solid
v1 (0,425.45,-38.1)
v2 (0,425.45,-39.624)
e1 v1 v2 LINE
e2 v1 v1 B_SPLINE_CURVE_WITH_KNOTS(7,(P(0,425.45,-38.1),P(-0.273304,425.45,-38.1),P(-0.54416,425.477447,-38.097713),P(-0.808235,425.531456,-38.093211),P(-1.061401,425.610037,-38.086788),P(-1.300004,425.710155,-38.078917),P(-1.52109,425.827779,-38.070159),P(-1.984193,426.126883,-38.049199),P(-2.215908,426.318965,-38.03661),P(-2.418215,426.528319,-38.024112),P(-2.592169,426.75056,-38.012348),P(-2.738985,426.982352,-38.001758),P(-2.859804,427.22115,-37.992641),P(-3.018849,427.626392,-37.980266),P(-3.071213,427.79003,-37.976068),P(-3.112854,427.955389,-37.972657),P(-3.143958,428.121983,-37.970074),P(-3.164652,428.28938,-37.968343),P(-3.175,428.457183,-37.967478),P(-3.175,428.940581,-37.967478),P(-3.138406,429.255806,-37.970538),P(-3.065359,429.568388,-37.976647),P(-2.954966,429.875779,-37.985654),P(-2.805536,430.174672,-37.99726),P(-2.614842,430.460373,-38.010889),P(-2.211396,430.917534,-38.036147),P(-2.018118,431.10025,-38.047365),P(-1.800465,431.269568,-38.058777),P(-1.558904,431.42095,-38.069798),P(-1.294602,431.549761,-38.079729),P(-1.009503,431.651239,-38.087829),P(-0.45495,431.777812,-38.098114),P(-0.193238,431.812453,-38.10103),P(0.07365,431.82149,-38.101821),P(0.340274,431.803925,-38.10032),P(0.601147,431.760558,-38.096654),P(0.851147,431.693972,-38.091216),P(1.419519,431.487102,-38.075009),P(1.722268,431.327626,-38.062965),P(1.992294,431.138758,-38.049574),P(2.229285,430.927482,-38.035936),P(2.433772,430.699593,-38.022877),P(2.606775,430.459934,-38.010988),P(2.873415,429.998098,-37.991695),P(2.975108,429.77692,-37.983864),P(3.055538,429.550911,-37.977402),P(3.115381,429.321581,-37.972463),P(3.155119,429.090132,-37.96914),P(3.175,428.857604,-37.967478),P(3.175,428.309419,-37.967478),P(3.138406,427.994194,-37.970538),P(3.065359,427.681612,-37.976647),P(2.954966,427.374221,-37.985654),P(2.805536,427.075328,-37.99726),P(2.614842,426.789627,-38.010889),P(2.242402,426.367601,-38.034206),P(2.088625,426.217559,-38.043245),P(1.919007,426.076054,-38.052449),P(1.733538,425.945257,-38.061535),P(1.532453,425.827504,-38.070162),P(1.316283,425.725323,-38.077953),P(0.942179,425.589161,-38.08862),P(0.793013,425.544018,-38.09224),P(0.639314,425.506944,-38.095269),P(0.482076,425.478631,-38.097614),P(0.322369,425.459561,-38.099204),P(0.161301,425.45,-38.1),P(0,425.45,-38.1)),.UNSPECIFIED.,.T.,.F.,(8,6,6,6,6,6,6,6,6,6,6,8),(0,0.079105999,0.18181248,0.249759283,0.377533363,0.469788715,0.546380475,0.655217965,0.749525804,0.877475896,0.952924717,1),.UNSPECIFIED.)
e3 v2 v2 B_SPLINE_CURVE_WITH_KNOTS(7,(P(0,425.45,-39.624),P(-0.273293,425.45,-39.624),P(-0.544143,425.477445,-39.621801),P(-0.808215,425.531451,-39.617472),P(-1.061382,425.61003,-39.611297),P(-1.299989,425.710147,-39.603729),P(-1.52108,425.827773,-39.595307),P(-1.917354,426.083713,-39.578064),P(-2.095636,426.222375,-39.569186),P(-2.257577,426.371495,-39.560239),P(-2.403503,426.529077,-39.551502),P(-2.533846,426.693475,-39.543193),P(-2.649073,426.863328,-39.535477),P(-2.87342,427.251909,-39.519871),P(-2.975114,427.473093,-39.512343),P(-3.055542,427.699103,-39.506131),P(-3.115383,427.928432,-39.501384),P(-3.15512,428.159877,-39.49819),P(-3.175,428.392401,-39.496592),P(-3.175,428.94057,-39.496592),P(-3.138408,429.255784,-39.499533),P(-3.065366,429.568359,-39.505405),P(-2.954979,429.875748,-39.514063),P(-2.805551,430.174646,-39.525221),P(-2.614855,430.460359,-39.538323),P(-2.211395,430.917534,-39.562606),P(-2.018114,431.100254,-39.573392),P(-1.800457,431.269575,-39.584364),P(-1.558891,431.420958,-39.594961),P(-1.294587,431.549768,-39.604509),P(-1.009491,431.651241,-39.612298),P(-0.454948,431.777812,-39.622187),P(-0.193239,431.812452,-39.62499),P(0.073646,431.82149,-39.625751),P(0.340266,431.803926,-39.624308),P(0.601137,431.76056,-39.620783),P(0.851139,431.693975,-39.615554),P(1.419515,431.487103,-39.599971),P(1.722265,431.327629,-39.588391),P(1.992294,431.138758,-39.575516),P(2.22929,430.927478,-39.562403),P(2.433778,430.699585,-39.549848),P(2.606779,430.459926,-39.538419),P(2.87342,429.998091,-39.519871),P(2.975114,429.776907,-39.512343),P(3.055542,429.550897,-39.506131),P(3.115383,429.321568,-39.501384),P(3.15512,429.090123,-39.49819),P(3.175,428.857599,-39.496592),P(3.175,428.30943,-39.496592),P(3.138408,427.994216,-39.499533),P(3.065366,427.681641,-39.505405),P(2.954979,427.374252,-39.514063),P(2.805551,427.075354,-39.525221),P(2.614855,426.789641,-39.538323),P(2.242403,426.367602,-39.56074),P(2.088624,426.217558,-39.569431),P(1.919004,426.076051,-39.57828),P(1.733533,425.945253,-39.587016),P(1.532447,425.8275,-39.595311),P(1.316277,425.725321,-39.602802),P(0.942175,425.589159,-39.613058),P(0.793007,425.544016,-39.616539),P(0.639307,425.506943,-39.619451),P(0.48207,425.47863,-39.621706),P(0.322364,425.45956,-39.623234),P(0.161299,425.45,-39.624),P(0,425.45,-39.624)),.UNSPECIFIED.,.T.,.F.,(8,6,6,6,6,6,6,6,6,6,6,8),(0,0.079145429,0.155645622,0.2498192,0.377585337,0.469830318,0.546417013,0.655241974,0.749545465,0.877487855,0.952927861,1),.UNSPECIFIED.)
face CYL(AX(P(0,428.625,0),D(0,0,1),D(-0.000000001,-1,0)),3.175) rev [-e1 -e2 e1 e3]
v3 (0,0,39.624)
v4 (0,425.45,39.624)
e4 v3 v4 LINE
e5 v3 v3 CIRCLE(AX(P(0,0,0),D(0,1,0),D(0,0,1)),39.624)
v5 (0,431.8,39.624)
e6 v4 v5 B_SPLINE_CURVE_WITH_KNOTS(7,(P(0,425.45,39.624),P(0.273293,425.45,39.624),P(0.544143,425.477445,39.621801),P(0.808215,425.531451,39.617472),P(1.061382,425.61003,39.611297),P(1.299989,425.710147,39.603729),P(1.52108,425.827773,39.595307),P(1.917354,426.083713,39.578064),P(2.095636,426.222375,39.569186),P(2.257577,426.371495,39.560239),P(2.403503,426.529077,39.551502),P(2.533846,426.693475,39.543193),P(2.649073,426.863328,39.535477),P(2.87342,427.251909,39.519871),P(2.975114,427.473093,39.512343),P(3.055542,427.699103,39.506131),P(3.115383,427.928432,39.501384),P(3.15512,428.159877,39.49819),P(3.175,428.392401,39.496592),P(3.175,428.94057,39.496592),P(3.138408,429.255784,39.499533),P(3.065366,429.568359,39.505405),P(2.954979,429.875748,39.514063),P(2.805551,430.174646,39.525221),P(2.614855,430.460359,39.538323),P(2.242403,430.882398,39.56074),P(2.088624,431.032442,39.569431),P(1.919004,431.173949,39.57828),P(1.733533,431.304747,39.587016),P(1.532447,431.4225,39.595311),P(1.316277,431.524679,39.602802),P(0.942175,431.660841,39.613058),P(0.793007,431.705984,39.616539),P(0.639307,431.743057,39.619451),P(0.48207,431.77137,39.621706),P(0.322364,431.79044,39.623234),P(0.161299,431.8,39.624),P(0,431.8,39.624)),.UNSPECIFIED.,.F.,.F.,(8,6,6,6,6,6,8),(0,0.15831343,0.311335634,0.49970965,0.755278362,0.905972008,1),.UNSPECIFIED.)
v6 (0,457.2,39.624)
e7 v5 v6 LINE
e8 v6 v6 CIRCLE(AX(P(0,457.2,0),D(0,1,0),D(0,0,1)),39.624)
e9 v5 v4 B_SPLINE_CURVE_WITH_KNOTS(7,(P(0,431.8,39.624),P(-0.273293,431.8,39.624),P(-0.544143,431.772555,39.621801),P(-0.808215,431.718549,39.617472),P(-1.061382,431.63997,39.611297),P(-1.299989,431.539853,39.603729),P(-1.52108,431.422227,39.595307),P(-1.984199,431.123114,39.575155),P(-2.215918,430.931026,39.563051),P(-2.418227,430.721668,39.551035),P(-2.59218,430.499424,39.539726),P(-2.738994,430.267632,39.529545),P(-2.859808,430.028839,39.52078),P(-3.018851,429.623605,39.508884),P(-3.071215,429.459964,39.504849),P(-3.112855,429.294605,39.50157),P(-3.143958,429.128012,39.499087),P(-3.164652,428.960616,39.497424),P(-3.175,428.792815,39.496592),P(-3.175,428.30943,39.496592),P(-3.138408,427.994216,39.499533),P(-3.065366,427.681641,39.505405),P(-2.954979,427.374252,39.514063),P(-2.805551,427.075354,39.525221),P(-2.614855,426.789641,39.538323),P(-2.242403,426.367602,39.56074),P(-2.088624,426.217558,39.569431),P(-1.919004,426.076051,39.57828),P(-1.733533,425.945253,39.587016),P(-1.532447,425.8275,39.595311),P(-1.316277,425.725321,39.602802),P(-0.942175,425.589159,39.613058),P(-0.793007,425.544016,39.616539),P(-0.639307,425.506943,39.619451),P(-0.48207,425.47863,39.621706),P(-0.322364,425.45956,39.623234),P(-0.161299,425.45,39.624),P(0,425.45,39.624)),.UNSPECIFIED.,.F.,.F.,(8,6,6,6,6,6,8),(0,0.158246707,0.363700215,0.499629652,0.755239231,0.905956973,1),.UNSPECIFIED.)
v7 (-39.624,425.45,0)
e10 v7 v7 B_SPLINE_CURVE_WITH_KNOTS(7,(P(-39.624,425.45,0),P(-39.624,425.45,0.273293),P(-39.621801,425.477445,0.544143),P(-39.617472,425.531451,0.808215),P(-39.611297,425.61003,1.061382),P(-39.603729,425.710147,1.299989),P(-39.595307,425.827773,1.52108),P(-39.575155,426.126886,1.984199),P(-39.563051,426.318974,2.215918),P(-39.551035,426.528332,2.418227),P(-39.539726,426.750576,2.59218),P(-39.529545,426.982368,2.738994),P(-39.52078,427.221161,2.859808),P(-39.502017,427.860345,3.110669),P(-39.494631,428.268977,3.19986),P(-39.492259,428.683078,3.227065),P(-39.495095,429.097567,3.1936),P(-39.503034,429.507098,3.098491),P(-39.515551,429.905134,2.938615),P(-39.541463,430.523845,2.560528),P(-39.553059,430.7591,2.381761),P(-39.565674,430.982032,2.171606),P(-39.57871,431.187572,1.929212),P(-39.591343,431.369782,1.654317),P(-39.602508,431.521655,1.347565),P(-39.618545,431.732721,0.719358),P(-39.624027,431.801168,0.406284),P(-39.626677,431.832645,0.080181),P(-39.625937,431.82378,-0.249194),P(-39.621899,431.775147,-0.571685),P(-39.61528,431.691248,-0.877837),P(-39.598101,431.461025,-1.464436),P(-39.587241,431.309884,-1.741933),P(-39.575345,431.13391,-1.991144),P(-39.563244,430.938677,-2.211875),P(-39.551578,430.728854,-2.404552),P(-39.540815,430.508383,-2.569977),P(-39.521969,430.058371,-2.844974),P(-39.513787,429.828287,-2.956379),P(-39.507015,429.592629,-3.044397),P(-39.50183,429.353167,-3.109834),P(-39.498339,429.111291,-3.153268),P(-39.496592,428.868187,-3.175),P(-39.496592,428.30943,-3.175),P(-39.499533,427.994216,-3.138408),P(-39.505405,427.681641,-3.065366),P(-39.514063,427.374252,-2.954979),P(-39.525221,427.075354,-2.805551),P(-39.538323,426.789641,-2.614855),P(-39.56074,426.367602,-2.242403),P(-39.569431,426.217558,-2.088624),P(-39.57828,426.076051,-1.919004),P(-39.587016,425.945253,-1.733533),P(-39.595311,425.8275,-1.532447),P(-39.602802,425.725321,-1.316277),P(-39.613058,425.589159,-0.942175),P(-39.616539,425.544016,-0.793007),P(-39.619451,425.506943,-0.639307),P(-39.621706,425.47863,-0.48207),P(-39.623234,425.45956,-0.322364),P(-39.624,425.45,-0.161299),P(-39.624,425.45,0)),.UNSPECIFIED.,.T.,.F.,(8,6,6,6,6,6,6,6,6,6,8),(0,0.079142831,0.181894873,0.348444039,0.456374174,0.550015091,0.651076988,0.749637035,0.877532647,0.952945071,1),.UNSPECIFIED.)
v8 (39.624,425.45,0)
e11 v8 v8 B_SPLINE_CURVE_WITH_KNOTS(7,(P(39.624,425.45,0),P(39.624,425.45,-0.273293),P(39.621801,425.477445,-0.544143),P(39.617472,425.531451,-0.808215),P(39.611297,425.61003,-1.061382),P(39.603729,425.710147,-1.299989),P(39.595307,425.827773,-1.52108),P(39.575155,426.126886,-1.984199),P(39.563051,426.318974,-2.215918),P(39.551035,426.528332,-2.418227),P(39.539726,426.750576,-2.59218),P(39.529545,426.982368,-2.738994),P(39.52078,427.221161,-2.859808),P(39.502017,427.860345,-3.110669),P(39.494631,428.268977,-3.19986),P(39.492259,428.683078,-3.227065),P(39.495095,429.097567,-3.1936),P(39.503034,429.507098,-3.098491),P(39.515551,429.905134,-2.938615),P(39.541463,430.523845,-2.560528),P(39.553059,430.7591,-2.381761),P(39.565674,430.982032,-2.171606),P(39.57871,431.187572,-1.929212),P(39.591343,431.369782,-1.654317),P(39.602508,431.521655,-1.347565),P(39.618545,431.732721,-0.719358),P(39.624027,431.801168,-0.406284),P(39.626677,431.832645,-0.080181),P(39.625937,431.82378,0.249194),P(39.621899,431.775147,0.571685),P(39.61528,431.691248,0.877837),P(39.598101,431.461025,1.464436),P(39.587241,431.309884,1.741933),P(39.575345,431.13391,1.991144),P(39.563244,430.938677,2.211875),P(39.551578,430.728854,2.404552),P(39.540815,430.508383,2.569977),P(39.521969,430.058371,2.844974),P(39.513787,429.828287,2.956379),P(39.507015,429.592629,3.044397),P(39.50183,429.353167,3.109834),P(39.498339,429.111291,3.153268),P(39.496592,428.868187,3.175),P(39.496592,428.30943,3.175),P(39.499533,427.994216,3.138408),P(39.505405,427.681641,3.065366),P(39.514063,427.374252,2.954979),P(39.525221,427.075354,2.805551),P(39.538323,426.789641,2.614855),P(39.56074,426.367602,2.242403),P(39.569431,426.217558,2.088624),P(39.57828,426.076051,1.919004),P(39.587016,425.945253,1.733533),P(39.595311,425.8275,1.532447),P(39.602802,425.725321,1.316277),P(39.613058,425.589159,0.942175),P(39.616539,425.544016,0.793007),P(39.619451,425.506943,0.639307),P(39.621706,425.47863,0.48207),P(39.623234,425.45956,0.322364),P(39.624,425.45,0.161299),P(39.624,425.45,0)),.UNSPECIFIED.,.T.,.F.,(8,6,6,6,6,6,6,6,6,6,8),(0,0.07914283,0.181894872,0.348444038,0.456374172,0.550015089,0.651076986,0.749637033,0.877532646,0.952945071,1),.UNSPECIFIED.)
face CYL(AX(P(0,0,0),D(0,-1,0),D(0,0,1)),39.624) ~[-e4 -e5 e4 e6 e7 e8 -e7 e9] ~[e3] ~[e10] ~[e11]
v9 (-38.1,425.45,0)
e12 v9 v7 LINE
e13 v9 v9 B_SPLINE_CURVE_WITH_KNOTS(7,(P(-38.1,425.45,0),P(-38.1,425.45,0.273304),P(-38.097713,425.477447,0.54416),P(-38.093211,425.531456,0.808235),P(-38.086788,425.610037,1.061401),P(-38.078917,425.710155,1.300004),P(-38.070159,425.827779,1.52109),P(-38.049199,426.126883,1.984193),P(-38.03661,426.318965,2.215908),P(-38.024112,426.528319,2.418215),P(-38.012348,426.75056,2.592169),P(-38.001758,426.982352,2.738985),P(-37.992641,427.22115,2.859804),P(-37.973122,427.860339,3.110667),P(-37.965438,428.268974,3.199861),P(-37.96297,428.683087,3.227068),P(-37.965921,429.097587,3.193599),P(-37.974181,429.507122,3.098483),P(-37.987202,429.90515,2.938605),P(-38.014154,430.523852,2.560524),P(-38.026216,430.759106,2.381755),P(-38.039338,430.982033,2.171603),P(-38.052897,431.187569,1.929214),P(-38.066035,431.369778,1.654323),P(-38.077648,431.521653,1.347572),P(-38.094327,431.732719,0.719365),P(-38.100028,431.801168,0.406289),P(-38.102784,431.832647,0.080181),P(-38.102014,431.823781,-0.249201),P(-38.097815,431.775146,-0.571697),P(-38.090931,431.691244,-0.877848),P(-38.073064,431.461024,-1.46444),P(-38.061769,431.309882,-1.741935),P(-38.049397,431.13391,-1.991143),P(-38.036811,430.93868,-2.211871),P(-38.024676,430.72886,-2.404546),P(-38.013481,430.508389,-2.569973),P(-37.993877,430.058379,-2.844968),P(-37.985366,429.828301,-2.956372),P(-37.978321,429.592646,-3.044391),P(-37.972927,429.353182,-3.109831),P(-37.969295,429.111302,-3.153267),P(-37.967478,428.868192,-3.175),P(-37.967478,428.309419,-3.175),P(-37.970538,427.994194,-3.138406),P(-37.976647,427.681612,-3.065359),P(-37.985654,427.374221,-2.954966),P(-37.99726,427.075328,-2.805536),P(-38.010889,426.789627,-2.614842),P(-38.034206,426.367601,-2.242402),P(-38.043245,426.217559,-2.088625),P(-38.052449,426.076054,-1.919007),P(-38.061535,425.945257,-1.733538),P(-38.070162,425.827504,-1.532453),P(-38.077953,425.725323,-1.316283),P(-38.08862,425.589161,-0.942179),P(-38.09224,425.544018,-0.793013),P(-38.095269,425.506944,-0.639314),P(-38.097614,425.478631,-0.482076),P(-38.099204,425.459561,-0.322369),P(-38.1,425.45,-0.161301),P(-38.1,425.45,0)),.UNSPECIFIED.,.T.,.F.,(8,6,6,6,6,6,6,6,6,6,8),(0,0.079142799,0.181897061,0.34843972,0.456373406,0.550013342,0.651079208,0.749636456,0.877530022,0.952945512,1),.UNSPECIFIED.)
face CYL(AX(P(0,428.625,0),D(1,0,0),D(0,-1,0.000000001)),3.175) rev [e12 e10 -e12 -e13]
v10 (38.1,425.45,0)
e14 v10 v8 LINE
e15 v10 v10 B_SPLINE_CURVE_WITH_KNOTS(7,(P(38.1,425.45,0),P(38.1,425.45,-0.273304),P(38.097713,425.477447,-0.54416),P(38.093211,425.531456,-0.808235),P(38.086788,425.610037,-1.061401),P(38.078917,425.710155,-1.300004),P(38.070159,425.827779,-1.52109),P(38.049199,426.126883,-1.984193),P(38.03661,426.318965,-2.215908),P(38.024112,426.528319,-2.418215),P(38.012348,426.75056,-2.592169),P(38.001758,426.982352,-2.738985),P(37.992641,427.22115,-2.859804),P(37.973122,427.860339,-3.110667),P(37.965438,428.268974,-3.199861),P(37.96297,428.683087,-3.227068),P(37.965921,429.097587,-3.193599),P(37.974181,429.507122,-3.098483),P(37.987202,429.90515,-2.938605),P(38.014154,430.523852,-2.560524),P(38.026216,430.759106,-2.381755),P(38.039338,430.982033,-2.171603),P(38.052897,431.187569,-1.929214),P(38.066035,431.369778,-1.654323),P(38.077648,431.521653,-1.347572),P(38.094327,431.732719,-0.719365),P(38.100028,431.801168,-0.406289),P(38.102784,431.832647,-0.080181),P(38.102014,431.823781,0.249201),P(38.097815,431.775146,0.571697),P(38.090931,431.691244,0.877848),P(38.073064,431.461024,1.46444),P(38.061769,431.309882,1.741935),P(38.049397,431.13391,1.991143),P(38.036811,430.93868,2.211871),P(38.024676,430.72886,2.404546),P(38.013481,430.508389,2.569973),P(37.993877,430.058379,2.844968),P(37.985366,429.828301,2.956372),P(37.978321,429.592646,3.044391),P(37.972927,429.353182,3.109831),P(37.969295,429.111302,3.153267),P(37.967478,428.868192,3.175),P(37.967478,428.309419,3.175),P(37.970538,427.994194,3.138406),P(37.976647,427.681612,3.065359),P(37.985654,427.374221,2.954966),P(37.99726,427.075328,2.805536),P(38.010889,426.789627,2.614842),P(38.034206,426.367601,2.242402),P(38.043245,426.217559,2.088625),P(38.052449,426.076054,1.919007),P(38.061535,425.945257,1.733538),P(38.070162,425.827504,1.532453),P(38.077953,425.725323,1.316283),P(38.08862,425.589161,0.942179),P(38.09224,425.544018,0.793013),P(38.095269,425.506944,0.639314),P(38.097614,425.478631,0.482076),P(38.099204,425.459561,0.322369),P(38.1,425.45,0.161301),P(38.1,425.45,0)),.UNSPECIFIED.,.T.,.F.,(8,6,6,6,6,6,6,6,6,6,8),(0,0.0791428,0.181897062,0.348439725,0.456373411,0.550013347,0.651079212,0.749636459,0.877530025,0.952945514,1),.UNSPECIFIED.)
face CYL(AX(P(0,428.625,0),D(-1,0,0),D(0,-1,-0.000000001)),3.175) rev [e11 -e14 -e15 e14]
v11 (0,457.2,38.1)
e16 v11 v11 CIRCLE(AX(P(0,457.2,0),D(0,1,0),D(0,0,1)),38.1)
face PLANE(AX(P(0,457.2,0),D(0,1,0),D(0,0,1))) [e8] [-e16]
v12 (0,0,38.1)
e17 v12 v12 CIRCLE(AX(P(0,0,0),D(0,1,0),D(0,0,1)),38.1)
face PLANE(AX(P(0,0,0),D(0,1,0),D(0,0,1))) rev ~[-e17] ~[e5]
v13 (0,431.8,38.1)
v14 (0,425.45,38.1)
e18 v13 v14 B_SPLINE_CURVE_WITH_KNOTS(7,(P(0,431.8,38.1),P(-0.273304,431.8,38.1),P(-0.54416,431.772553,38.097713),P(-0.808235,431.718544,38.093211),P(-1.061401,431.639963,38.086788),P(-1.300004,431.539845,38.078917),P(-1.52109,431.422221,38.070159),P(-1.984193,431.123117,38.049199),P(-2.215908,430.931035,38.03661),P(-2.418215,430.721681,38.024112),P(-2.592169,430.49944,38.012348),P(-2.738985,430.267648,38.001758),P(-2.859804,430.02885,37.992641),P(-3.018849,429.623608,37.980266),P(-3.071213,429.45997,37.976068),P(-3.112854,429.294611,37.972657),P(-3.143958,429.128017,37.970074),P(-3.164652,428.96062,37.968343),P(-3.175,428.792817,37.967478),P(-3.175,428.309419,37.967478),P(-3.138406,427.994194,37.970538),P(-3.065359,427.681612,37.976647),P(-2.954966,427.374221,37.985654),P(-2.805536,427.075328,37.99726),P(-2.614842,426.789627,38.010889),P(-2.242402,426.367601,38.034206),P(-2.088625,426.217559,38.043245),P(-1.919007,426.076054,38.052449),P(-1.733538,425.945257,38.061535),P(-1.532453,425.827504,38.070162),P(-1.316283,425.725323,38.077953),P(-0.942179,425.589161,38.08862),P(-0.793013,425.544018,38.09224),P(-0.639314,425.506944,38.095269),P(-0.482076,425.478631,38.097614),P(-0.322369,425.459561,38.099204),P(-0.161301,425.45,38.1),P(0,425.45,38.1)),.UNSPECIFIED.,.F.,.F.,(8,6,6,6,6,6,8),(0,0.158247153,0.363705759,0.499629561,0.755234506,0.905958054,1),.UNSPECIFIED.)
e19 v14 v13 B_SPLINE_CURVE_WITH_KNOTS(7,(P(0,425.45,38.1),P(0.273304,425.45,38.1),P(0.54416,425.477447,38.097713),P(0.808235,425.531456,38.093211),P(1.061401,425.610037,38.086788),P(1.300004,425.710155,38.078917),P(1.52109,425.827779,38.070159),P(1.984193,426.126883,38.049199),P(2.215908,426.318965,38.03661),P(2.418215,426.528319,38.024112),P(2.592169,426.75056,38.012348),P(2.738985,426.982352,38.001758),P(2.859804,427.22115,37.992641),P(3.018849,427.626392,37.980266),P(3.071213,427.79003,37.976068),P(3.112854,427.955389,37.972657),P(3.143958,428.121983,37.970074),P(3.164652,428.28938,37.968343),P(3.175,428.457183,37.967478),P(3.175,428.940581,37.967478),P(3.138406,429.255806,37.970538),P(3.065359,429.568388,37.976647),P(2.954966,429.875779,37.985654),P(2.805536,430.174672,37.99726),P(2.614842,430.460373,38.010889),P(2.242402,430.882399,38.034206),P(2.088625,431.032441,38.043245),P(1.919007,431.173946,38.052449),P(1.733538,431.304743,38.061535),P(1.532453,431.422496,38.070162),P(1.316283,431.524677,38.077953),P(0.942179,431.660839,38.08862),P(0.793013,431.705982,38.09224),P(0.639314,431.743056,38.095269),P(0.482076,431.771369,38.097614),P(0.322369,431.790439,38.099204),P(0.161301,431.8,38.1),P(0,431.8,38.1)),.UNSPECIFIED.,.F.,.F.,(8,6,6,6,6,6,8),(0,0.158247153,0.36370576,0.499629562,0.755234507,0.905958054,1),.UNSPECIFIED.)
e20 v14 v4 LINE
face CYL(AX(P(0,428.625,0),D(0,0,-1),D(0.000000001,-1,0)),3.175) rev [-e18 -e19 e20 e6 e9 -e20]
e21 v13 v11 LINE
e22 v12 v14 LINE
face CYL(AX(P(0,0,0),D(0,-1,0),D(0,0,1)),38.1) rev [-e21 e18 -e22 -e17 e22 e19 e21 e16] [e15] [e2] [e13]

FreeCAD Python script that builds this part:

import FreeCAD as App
import Part
import Sketcher
Q = App.Units.Quantity

doc = App.newDocument("Part")
params = doc.addObject("Spreadsheet::Sheet", "Params")
for row, (alias, value) in enumerate([
    ("sketch1_diameter", "3 in"),
    ("sketch1_diameter2", "3.12 in"),
    ("pad1_length", "18 in"),
    ("sketch2_diameter", "0.25 in"),
], start=1):
    params.set(f"A{row}", alias)
    params.set(f"B{row}", "=" + value)
    params.setAlias(f"B{row}", alias)

body = doc.addObject("PartDesign::Body", "Body")

# Sketch on XZ plane
sketch1 = doc.addObject("Sketcher::SketchObject", "Sketch")
body.addObject(sketch1)
sketch1.AttachmentSupport = (doc.XZ_Plane, [""])
sketch1.MapMode = "FlatFace"
sketch1.addGeometry([
    Part.Circle(App.Vector(0, 0, 0), App.Vector(0, 0, 1), 39.624),
    Part.Circle(App.Vector(0, 0, 0), App.Vector(0, 0, 1), 38.1),
], False)
sketch1.addConstraint([
    Sketcher.Constraint("Coincident", 0, 3, -1, 1),
    Sketcher.Constraint("Coincident", 1, 3, -1, 1),
    Sketcher.Constraint("Diameter", 1, Q("3 in")),
    Sketcher.Constraint("Diameter", 0, Q("3.12 in")),
])
sketch1.setExpression("Constraints[2]", "Params.sketch1_diameter")
sketch1.setExpression("Constraints[3]", "Params.sketch1_diameter2")
pad1 = doc.addObject("PartDesign::Pad", "Pad")
body.addObject(pad1)
pad1.Profile = sketch1
pad1.setExpression("Length", "Params.pad1_length")
pad1.Reversed = True

# Sketch on XY plane
sketch2 = doc.addObject("Sketcher::SketchObject", "Sketch001")
body.addObject(sketch2)
sketch2.AttachmentSupport = (doc.XY_Plane, [""])
sketch2.MapMode = "FlatFace"
sketch2.addGeometry(Part.Circle(App.Vector(0, 428.625, 0), App.Vector(0, 0, 1), 3.175), False)
sketch2.addConstraint([
    Sketcher.Constraint("PointOnObject", 0, 3, -2),
    Sketcher.Constraint("Diameter", 0, Q("0.25 in")),
    Sketcher.Constraint("DistanceY", -1, 1, 0, 3, Q("16.875 in")),
])
sketch2.setExpression("Constraints[1]", "Params.sketch2_diameter")
pocket1 = doc.addObject("PartDesign::Pocket", "Pocket")
body.addObject(pocket1)
pocket1.Profile = sketch2
pocket1.Type = "ThroughAll"
pocket1.Reversed = True
doc.recompute()

polarpattern = doc.addObject("PartDesign::PolarPattern", "PolarPattern")
body.addObject(polarpattern)
polarpattern.Originals = [pocket1]
polarpattern.Axis = (doc.Y_Axis, [""])
polarpattern.Angle = 360
polarpattern.Occurrences = 4
body.Tip = polarpattern

doc.recompute()
